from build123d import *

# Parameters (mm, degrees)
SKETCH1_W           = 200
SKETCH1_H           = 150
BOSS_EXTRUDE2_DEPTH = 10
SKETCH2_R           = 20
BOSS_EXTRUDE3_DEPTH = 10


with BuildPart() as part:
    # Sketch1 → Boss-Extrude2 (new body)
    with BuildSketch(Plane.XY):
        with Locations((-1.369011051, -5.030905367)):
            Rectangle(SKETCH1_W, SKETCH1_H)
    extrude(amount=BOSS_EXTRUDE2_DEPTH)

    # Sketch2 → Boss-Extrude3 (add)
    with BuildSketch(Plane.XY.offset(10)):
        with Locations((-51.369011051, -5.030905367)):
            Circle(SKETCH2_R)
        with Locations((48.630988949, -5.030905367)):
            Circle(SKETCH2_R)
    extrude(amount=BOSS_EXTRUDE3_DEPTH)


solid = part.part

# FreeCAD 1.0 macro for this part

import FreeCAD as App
import Part
import Sketcher
Q = App.Units.Quantity

doc = App.newDocument("Part")
body = doc.addObject("PartDesign::Body", "Body")

sketch1 = body.newObject("Sketcher::SketchObject", "Sketch")
sketch1.AttachmentSupport = (doc.getObject("XY_Plane"), [""])
sketch1.MapMode = "FlatFace"
sketch1.addGeometry(Part.LineSegment(App.Vector(-101, 70, 0), App.Vector(-101, -80, 0)), False)
sketch1.addGeometry(Part.LineSegment(App.Vector(-101, -80, 0), App.Vector(99, -80, 0)), False)
sketch1.addGeometry(Part.LineSegment(App.Vector(99, -80, 0), App.Vector(99, 70, 0)), False)
sketch1.addGeometry(Part.LineSegment(App.Vector(99, 70, 0), App.Vector(-101, 70, 0)), False)
sketch1.addConstraint(Sketcher.Constraint("Coincident", 0, 2, 1, 1))
sketch1.addConstraint(Sketcher.Constraint("Coincident", 1, 2, 2, 1))
sketch1.addConstraint(Sketcher.Constraint("Coincident", 2, 2, 3, 1))
sketch1.addConstraint(Sketcher.Constraint("Coincident", 3, 2, 0, 1))
sketch1.addConstraint(Sketcher.Constraint("Vertical", 0))
sketch1.addConstraint(Sketcher.Constraint("Horizontal", 1))
sketch1.addConstraint(Sketcher.Constraint("Vertical", 2))
sketch1.addConstraint(Sketcher.Constraint("Horizontal", 3))
sketch1.addConstraint(Sketcher.Constraint("DistanceX", 1, 1, 1, 2, Q("200 mm")))
sketch1.addConstraint(Sketcher.Constraint("DistanceY", 0, 2, 0, 1, Q("150 mm")))
sketch1.addConstraint(Sketcher.Constraint("DistanceX", 0, 2, -1, 1, Q("101.369011 mm")))
sketch1.addConstraint(Sketcher.Constraint("DistanceY", 0, 2, -1, 1, Q("80.030905 mm")))
pad1 = body.newObject("PartDesign::Pad", "Pad")
pad1.Profile = sketch1
pad1.Length = 10

sketch2 = body.newObject("Sketcher::SketchObject", "Sketch001")
sketch2.AttachmentSupport = (doc.getObject("XY_Plane"), [""])
sketch2.MapMode = "FlatFace"
sketch2.AttachmentOffset = App.Placement(App.Vector(0, 0, 10), App.Rotation())
sketch2.addGeometry(Part.Circle(App.Vector(-51, -5, 0), App.Vector(0, 0, 1), 20), False)
sketch2.addGeometry(Part.Circle(App.Vector(49, -5, 0), App.Vector(0, 0, 1), 20), False)
sketch2.addConstraint(Sketcher.Constraint("Equal", 0, 1))
sketch2.addConstraint(Sketcher.Constraint("Horizontal", 0, 3, 1, 3))
sketch2.addConstraint(Sketcher.Constraint("Diameter", 0, Q("40 mm")))
sketch2.addConstraint(Sketcher.Constraint("DistanceX", 0, 3, 1, 3, Q("100 mm")))
sketch2.addConstraint(Sketcher.Constraint("DistanceX", 0, 3, -1, 1, Q("51.369011 mm")))
sketch2.addConstraint(Sketcher.Constraint("DistanceY", 0, 3, -1, 1, Q("5.030905 mm")))
pad2 = body.newObject("PartDesign::Pad", "Pad001")
pad2.Profile = sketch2
pad2.Length = 10

doc.recompute()
